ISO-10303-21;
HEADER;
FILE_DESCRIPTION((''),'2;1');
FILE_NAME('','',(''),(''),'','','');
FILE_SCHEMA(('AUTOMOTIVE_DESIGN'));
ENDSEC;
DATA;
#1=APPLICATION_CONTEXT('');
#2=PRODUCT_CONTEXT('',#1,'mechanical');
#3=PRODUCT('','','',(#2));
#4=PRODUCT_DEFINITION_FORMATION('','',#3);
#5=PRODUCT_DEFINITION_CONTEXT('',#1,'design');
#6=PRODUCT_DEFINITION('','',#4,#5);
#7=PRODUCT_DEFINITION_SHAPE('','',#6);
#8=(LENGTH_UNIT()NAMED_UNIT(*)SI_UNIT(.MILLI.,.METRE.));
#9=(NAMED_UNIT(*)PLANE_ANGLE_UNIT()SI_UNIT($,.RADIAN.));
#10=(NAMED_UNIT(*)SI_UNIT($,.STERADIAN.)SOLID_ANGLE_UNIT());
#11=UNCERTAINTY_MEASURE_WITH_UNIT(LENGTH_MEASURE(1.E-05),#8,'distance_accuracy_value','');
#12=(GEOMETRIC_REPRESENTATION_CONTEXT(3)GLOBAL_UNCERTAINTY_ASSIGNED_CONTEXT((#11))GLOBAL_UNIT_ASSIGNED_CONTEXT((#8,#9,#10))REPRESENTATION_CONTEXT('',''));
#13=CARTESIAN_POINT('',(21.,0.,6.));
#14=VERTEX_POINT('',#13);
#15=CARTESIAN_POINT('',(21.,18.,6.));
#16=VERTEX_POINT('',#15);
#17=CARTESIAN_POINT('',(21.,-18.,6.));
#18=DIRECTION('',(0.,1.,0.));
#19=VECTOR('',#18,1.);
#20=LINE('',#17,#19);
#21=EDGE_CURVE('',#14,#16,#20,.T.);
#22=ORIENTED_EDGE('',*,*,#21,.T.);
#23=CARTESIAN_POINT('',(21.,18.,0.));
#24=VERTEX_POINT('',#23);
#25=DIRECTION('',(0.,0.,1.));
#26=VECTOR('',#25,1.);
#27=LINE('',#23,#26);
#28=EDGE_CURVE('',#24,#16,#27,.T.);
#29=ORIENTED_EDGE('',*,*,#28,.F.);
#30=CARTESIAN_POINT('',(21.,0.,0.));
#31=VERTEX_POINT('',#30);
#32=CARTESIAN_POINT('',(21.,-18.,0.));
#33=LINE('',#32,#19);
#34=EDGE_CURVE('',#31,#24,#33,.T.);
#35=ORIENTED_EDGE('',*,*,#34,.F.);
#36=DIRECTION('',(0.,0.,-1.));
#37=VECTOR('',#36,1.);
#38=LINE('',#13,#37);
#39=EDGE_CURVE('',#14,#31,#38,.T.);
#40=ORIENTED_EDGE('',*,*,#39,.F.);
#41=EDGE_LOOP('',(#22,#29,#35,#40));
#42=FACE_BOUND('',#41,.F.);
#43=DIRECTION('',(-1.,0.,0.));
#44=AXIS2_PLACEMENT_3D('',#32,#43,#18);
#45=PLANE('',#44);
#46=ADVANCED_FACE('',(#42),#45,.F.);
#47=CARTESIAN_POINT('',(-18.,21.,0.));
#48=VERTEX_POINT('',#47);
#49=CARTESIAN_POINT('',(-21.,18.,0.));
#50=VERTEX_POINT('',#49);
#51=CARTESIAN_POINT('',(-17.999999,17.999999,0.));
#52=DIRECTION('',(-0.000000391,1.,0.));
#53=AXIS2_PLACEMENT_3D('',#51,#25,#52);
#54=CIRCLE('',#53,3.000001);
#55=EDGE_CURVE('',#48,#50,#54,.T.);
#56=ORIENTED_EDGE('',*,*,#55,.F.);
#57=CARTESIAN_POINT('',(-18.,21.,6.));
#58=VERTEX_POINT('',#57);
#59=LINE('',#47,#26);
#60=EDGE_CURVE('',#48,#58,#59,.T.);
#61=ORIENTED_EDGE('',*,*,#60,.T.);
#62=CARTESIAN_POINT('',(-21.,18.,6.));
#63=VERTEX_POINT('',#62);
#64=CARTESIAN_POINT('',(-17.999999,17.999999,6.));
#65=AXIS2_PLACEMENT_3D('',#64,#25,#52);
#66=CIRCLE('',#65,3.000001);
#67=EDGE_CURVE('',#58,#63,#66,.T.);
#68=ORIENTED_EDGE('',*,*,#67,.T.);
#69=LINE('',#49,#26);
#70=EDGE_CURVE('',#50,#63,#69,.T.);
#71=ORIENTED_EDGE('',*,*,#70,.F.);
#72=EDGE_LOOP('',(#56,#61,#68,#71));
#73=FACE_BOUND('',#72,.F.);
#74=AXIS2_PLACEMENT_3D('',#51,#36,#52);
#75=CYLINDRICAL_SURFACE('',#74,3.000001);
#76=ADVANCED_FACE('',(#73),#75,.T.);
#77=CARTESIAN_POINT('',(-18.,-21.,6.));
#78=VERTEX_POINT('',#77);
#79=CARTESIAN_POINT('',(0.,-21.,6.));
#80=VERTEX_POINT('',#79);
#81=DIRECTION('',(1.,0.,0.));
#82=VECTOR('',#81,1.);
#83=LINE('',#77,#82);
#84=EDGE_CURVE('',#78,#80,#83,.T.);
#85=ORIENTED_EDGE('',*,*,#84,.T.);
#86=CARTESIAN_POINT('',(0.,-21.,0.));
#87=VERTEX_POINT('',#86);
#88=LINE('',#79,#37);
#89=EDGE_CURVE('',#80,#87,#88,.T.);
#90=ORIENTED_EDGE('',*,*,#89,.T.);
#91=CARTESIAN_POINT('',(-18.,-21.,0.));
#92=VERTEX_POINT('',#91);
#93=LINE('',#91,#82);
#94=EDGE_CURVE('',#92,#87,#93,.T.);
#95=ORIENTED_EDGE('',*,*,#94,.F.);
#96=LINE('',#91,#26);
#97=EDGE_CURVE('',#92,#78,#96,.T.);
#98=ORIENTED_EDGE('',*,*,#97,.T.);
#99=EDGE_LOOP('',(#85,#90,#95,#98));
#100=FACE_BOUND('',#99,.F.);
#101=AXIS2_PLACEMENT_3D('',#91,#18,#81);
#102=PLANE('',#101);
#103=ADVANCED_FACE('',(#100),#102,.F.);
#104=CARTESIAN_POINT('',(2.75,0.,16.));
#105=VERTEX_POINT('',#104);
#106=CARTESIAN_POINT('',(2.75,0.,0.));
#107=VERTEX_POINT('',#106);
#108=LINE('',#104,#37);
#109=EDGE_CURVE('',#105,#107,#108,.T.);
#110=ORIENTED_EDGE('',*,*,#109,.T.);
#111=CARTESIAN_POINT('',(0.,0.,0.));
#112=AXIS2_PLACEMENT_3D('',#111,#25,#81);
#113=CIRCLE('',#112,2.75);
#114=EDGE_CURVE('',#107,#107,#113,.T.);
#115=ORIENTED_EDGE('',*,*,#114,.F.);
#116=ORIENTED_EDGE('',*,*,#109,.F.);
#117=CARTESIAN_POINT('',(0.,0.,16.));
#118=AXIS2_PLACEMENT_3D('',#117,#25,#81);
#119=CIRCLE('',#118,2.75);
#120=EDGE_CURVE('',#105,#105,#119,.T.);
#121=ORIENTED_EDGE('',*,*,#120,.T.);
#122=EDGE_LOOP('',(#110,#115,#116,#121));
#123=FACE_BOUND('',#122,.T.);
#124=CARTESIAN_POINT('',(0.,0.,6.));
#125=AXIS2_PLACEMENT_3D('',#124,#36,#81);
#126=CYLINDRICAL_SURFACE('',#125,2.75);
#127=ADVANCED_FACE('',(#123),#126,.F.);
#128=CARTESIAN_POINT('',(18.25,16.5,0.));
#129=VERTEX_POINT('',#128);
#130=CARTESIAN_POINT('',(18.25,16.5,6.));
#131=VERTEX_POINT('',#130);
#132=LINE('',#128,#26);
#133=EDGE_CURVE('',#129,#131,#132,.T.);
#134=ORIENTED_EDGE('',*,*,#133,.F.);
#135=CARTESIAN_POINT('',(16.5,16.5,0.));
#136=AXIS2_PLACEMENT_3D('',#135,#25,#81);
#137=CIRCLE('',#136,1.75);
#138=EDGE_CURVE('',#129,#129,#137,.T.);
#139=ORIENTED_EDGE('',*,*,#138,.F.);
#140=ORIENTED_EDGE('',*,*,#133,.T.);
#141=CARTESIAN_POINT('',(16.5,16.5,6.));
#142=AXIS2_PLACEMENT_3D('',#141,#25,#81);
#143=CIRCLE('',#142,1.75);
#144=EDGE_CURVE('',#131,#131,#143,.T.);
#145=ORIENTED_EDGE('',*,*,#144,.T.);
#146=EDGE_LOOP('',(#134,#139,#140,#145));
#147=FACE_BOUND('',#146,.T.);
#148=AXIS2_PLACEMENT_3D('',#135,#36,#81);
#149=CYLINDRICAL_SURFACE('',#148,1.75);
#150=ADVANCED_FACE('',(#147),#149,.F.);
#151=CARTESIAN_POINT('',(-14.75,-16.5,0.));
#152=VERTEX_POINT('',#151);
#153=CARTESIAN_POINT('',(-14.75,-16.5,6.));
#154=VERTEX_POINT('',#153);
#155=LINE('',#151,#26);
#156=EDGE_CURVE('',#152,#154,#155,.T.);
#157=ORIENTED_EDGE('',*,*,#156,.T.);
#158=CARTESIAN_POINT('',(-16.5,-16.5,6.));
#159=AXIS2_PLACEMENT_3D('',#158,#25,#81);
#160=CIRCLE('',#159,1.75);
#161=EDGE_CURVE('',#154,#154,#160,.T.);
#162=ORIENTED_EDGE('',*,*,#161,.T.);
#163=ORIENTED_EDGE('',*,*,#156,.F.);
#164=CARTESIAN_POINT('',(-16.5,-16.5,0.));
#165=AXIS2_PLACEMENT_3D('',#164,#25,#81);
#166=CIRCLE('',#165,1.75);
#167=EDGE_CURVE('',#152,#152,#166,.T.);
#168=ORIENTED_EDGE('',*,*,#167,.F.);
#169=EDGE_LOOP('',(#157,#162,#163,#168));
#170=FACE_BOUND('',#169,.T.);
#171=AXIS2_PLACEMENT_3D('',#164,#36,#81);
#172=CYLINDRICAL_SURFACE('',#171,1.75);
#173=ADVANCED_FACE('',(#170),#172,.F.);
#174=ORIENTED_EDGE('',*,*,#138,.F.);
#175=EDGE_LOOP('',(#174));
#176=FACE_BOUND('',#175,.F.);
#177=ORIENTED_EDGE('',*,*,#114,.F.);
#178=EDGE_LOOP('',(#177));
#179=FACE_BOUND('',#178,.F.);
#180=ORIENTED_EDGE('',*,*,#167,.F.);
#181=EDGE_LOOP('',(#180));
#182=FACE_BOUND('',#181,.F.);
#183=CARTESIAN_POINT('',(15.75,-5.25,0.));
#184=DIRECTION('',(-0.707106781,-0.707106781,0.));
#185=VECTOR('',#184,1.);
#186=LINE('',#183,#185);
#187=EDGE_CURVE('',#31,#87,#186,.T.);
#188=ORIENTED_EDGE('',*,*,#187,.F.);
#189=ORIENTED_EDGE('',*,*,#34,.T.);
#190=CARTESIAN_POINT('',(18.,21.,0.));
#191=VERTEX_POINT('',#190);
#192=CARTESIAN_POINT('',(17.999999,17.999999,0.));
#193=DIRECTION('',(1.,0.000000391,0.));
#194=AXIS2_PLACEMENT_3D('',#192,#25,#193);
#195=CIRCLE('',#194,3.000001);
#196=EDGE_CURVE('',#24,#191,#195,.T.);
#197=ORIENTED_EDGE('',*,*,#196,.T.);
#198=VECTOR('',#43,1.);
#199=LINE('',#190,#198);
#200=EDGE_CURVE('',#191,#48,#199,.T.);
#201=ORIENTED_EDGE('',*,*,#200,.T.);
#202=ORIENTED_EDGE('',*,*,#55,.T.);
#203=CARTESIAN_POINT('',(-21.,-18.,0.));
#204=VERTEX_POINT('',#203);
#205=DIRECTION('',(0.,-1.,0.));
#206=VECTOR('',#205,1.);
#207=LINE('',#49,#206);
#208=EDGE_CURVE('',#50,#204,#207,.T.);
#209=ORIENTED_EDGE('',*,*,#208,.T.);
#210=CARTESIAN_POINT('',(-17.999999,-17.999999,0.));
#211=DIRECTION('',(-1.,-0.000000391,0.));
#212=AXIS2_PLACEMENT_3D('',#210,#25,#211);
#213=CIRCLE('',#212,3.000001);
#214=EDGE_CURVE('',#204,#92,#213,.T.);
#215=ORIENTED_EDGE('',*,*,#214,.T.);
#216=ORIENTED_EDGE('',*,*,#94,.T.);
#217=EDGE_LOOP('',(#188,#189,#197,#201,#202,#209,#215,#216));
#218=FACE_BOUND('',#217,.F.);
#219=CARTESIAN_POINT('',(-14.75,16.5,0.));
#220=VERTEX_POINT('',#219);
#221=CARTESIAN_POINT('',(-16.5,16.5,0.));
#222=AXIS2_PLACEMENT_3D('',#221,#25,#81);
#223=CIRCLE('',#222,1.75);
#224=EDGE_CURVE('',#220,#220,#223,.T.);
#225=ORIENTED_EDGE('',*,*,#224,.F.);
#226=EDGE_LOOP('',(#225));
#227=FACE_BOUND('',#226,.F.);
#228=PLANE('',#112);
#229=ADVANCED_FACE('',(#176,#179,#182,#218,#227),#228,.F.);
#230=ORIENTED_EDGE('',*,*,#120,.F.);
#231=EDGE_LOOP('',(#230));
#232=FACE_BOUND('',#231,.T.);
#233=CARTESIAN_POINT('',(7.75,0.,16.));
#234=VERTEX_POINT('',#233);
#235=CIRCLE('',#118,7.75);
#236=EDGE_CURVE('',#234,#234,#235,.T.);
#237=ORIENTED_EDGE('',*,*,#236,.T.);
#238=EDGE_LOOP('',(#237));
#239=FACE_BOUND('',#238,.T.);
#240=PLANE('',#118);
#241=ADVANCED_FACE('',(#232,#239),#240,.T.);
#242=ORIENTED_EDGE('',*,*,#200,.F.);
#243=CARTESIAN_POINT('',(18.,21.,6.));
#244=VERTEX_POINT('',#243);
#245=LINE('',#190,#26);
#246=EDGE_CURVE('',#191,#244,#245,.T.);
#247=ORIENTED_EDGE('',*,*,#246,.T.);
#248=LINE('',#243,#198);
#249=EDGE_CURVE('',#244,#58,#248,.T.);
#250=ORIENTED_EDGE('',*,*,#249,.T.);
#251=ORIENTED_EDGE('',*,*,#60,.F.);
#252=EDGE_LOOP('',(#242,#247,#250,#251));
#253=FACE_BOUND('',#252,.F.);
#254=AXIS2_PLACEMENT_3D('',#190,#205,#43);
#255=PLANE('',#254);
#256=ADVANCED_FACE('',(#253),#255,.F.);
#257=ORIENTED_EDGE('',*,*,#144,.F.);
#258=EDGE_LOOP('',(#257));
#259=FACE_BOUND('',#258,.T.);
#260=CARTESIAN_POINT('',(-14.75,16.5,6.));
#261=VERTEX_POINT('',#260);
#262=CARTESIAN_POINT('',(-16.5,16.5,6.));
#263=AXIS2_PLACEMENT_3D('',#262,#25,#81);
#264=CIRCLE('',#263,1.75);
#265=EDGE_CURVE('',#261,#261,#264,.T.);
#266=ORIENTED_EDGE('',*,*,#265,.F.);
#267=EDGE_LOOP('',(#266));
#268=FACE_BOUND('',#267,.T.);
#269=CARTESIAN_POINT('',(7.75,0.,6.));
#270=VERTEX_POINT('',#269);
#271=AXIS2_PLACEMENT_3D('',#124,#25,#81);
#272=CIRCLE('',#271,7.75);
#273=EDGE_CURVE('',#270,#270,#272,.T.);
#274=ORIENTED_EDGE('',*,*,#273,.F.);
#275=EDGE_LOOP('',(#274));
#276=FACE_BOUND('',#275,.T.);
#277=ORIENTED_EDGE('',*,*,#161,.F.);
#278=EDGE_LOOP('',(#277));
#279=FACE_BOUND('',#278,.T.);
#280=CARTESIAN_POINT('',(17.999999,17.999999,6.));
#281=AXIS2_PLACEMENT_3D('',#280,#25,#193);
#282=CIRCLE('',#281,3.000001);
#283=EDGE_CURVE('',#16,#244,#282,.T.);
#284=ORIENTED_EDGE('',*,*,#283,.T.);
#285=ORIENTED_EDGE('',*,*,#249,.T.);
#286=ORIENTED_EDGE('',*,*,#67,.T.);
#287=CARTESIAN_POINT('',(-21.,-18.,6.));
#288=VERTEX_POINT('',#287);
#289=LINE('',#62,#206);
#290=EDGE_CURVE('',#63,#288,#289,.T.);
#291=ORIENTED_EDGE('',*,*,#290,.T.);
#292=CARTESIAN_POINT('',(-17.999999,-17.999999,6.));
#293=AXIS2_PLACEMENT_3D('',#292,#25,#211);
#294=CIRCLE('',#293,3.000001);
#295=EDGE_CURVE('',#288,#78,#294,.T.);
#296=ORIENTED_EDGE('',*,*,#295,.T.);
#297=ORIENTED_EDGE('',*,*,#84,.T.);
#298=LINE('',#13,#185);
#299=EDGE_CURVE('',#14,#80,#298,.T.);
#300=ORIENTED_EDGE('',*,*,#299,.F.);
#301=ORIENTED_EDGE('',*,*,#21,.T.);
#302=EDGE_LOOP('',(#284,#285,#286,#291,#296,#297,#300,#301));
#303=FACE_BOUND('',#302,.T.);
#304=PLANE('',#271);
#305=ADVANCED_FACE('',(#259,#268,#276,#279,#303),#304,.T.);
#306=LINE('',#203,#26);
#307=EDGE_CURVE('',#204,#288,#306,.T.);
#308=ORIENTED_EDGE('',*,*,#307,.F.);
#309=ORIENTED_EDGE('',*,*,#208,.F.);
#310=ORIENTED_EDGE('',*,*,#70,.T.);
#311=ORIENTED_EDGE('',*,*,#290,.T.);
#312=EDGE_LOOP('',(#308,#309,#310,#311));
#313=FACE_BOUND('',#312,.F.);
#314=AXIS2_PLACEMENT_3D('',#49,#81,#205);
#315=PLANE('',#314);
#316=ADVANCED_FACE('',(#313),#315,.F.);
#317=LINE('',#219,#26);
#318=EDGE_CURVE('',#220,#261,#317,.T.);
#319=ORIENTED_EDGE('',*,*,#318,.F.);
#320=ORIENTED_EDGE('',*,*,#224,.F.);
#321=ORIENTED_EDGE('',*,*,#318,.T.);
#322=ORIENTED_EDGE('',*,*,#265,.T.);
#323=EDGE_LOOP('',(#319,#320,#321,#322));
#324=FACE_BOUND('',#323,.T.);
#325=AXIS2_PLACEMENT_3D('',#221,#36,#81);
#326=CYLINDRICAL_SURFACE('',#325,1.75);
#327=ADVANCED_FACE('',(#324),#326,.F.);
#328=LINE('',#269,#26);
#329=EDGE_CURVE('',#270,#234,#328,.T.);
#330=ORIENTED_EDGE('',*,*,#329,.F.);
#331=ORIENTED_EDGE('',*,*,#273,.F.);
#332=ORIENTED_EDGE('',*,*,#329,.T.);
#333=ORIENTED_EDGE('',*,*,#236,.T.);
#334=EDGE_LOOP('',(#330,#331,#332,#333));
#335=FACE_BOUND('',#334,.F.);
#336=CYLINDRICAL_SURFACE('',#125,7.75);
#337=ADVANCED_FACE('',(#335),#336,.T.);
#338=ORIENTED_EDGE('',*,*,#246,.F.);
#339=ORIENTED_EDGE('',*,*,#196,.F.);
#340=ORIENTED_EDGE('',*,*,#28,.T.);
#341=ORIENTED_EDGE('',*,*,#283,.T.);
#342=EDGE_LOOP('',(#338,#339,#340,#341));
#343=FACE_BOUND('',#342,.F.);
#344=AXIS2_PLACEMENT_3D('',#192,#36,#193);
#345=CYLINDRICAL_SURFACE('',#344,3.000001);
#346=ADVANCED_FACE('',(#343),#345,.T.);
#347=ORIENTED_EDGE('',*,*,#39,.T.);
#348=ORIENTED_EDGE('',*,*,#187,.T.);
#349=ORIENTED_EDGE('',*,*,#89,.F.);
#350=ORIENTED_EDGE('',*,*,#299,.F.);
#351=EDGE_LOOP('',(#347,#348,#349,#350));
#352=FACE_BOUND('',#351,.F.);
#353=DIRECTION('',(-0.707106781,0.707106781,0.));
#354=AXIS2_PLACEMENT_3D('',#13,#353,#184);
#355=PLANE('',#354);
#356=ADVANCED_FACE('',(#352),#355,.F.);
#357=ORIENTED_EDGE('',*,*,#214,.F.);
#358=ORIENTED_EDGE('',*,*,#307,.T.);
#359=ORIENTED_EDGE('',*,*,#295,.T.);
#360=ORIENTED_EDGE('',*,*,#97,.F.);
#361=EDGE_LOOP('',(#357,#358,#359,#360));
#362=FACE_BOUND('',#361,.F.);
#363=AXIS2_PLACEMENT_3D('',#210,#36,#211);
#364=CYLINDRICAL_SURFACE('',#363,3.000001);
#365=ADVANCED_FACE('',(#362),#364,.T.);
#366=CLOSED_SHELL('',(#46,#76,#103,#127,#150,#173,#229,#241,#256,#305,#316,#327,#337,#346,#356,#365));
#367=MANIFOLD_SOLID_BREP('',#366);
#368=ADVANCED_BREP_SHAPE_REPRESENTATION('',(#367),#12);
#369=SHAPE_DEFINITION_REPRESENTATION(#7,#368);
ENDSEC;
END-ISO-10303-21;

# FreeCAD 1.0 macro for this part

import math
import FreeCAD as App
import Part
import Sketcher

V = App.Vector
Q = App.Units.Quantity


def add_polygon(sketch, points):
    """Adds a closed chain of lines whose ends are joined by coincident constraints."""
    first, n = sketch.GeometryCount, len(points)
    for a, b in zip(points, points[1:] + points[:1]):
        sketch.addGeometry(Part.LineSegment(App.Vector(*a, 0), App.Vector(*b, 0)), False)
    for i in range(n):
        sketch.addConstraint(Sketcher.Constraint("Coincident", first + i, 2, first + (i + 1) % n, 1))

doc = App.newDocument("Part")
body = doc.addObject("PartDesign::Body", "Body")

# Sketch on XY plane
sketch1 = body.newObject("Sketcher::SketchObject", "Sketch")
sketch1.AttachmentSupport = (doc.getObject("XY_Plane"), [""])
sketch1.MapMode = "FlatFace"
sketch1.addGeometry([
    Part.ArcOfCircle(Part.Circle(V(18, 18, 0), V(0, 0, 1), 3), math.radians(0), math.radians(90)),  # 0
    Part.LineSegment(V(18, 21, 0), V(-18, 21, 0)),  # 1
    Part.ArcOfCircle(Part.Circle(V(-18, 18, 0), V(0, 0, 1), 3), math.radians(90), math.radians(180)),  # 2
    Part.LineSegment(V(-21, 18, 0), V(-21, -18, 0)),  # 3
    Part.ArcOfCircle(Part.Circle(V(-18, -18, 0), V(0, 0, 1), 3), math.radians(-180), math.radians(-90)),  # 4
    Part.LineSegment(V(-18, -21, 0), V(18, -21, 0)),  # 5
    Part.ArcOfCircle(Part.Circle(V(18, -18, 0), V(0, 0, 1), 3), math.radians(-90), math.radians(0)),  # 6
    Part.LineSegment(V(21, -18, 0), V(21, 18, 0)),  # 7
    Part.Circle(V(-16.5, -16.5, 0), V(0, 0, 1), 1.8),  # 8
    Part.Circle(V(16.5, -16.5, 0), V(0, 0, 1), 1.8),  # 9
    Part.Circle(V(-16.5, 16.5, 0), V(0, 0, 1), 1.8),  # 10
    Part.Circle(V(0, 0, 0), V(0, 0, 1), 2.8),  # 11
    Part.Circle(V(16.5, 16.5, 0), V(0, 0, 1), 1.8),  # 12
], False)
sketch1.addConstraint([
    Sketcher.Constraint("Tangent", 0, 2, 1, 1),
    Sketcher.Constraint("Tangent", 1, 2, 2, 1),
    Sketcher.Constraint("Tangent", 2, 2, 3, 1),
    Sketcher.Constraint("Tangent", 3, 2, 4, 1),
    Sketcher.Constraint("Tangent", 4, 2, 5, 1),
    Sketcher.Constraint("Tangent", 5, 2, 6, 1),
    Sketcher.Constraint("Tangent", 6, 2, 7, 1),
    Sketcher.Constraint("Tangent", 7, 2, 0, 1),
    Sketcher.Constraint("Horizontal", 1),
    Sketcher.Constraint("Vertical", 3),
    Sketcher.Constraint("Horizontal", 5),
    Sketcher.Constraint("Vertical", 7),
    Sketcher.Constraint("Coincident", 11, 3, -1, 1),
    Sketcher.Constraint("Equal", 0, 2),
    Sketcher.Constraint("Equal", 2, 4),
    Sketcher.Constraint("Equal", 4, 6),
    Sketcher.Constraint("Equal", 8, 9),
    Sketcher.Constraint("Equal", 9, 10),
    Sketcher.Constraint("Equal", 10, 12),
    Sketcher.Constraint("Symmetric", 0, 3, 4, 3, -1, 1),
    Sketcher.Constraint("Symmetric", 9, 3, 10, 3, -1, 1),
    Sketcher.Constraint("Symmetric", 8, 3, 12, 3, -1, 1),
    Sketcher.Constraint("Symmetric", 8, 3, 9, 3, -2),
    Sketcher.Constraint("Equal", 5, 3),
    Sketcher.Constraint("Radius", 0, Q("3.000001 mm")),
    Sketcher.Constraint("Diameter", 8, Q("3.5 mm")),
    Sketcher.Constraint("Diameter", 11, Q("5.5 mm")),
    Sketcher.Constraint("DistanceX", 1, 2, 1, 1, Q("36 mm")),
    Sketcher.Constraint("DistanceX", 8, 3, 9, 3, Q("33 mm")),
    Sketcher.Constraint("DistanceY", 8, 3, 10, 3, Q("33 mm")),
])
pad1 = body.newObject("PartDesign::Pad", "Pad")
pad1.Profile = sketch1
pad1.Length = 6

# Sketch on XY plane
sketch2 = body.newObject("Sketcher::SketchObject", "Sketch001")
sketch2.AttachmentSupport = (doc.getObject("XY_Plane"), [""])
sketch2.MapMode = "FlatFace"
sketch2.AttachmentOffset = App.Placement(V(0, 0, 6), App.Rotation())
add_polygon(sketch2, [(21, 0), (0, -21), (21, -21)])  # lines 0-2
sketch2.addConstraint([
    Sketcher.Constraint("Horizontal", 1),
    Sketcher.Constraint("Vertical", 2),
    Sketcher.Constraint("PointOnObject", 0, 2, -2),
    Sketcher.Constraint("PointOnObject", 2, 2, -1),
    Sketcher.Constraint("Equal", 1, 2),
    Sketcher.Constraint("DistanceX", 1, 1, 1, 2, Q("21 mm")),
])
pocket1 = body.newObject("PartDesign::Pocket", "Pocket")
pocket1.Profile = sketch2
pocket1.Length = 25

# Sketch on XY plane
sketch3 = body.newObject("Sketcher::SketchObject", "Sketch002")
sketch3.AttachmentSupport = (doc.getObject("XY_Plane"), [""])
sketch3.MapMode = "FlatFace"
sketch3.AttachmentOffset = App.Placement(V(0, 0, 6), App.Rotation())
sketch3.addGeometry([
    Part.Circle(V(0, 0, 0), V(0, 0, 1), 7.8),
    Part.Circle(V(0, 0, 0), V(0, 0, 1), 2.8),
], False)
sketch3.addConstraint([
    Sketcher.Constraint("Coincident", 0, 3, -1, 1),
    Sketcher.Constraint("Coincident", 1, 3, -1, 1),
    Sketcher.Constraint("Diameter", 0, Q("15.5 mm")),
    Sketcher.Constraint("Diameter", 1, Q("5.5 mm")),
])
pad2 = body.newObject("PartDesign::Pad", "Pad001")
pad2.Profile = sketch3
pad2.Length = 10

doc.recompute()
